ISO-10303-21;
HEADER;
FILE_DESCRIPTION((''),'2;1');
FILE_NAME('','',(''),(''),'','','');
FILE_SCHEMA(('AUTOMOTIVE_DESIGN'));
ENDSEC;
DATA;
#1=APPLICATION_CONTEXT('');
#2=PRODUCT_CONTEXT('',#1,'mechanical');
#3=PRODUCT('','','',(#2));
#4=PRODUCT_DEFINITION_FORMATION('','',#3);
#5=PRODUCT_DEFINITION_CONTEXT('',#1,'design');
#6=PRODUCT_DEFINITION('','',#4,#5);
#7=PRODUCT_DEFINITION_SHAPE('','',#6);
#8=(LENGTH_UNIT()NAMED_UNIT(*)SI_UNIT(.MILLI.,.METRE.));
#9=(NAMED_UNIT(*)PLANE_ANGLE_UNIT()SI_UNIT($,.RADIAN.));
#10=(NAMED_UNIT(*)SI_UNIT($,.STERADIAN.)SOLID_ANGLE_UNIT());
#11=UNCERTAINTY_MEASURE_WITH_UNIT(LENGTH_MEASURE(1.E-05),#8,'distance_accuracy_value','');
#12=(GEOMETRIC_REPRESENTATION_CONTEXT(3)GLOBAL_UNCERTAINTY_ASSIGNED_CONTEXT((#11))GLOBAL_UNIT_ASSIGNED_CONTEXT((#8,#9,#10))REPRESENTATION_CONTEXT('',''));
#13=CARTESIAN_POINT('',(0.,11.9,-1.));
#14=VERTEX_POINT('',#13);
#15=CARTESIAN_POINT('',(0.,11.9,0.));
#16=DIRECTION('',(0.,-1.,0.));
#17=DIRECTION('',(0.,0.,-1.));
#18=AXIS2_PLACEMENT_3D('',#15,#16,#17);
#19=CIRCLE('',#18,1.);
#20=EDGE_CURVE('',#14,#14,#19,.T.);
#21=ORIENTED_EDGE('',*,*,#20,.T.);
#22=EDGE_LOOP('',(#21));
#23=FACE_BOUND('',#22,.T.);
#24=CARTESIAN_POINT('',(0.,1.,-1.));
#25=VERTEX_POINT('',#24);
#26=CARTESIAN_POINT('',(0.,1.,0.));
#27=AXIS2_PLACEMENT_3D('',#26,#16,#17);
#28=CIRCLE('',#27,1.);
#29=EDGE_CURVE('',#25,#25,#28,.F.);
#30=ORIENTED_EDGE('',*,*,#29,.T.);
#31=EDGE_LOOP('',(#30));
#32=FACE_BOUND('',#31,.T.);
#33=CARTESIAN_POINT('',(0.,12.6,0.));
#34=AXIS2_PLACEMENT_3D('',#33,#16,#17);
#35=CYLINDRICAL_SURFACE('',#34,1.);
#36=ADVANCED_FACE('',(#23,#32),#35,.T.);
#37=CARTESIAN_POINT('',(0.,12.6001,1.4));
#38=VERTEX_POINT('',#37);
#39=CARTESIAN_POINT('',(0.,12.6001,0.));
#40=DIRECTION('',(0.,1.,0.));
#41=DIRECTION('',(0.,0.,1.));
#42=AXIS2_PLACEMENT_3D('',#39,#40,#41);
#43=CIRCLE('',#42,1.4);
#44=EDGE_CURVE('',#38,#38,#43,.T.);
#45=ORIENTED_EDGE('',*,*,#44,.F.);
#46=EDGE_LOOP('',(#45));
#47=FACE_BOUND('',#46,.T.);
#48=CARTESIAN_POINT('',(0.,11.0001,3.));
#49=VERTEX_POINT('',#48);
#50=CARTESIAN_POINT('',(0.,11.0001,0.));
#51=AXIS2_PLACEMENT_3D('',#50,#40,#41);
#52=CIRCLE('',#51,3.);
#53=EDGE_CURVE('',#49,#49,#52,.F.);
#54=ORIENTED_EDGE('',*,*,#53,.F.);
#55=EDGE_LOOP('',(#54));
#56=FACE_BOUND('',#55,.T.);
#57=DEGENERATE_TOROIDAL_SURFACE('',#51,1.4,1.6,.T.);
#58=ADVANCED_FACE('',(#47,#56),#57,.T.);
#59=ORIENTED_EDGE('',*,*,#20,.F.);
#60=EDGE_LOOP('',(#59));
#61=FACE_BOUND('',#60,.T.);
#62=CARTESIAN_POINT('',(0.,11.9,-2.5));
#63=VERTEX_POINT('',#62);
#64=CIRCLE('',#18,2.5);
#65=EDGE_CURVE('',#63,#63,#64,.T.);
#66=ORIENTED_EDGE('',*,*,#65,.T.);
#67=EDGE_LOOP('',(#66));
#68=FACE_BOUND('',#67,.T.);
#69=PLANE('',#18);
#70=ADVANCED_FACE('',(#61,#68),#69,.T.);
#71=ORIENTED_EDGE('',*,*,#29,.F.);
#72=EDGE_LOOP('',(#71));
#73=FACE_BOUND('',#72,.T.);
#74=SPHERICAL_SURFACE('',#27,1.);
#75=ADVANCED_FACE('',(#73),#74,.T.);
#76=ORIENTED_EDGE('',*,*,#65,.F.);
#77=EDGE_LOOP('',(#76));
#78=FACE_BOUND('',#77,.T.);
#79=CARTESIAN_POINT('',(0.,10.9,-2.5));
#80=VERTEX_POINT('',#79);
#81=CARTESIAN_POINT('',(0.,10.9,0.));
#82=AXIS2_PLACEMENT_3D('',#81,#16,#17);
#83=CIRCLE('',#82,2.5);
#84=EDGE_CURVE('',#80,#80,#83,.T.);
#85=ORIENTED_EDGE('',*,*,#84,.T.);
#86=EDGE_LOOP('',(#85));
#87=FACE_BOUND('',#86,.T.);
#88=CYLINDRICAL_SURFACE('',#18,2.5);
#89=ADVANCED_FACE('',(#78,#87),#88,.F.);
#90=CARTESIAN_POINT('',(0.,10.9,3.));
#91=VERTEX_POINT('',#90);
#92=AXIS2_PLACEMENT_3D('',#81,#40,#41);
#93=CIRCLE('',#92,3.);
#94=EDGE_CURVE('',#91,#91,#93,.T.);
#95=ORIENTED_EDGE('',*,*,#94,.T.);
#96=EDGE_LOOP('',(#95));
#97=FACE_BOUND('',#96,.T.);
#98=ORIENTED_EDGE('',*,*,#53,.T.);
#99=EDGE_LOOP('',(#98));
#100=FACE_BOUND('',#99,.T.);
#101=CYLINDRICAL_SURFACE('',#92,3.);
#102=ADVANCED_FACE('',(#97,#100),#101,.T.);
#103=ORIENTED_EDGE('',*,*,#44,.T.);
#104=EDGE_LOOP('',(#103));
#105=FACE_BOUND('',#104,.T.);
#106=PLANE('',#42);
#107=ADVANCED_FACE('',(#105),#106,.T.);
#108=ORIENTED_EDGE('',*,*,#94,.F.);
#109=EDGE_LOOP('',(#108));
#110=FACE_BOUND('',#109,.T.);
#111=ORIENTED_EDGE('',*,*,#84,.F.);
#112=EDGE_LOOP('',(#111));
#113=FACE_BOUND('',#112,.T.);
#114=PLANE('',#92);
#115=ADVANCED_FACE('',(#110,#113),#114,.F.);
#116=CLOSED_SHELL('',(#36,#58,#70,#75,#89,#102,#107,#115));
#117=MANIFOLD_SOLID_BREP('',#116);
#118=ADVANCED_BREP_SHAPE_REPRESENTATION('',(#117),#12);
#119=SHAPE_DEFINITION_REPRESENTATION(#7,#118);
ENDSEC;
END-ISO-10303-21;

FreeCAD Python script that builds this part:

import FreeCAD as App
import Part
import Sketcher
Q = App.Units.Quantity


def edges_at(feature, points):
    """Names of the edges that pass closest to the given points."""
    edges = feature.Shape.Edges
    near = lambda p: min(range(len(edges)), key=lambda i: edges[i].distToShape(Part.Vertex(*p))[0])
    return sorted({f"Edge{near(p) + 1}" for p in points})

doc = App.newDocument("Part")
body = doc.addObject("PartDesign::Body", "Body")

# Sketch on XZ plane
sketch1 = doc.addObject("Sketcher::SketchObject", "Sketch")
body.addObject(sketch1)
sketch1.AttachmentSupport = (doc.XZ_Plane, [""])
sketch1.MapMode = "FlatFace"
sketch1.addGeometry(Part.Circle(App.Vector(0, 0, 0), App.Vector(0, 0, 1), 1), False)
sketch1.addConstraint([
    Sketcher.Constraint("Coincident", 0, 3, -1, 1),
    Sketcher.Constraint("Diameter", 0, Q("2 mm")),
])
pad1 = doc.addObject("PartDesign::Pad", "Pad")
body.addObject(pad1)
pad1.Profile = sketch1
pad1.Length = 12.6
pad1.Reversed = True
doc.recompute()

fillet = doc.addObject("PartDesign::Fillet", "Fillet")
body.addObject(fillet)
fillet.Base = (pad1, edges_at(pad1, [(0, 0, -1)]))
fillet.Radius = 1

# Sketch on XZ plane
sketch2 = doc.addObject("Sketcher::SketchObject", "Sketch001")
body.addObject(sketch2)
sketch2.AttachmentSupport = (doc.XZ_Plane, [""])
sketch2.MapMode = "FlatFace"
sketch2.AttachmentOffset = App.Placement(App.Vector(0, 0, -12.6), App.Rotation())
sketch2.addGeometry(Part.Circle(App.Vector(0, 0, 0), App.Vector(0, 0, 1), 3), False)
sketch2.addConstraint([
    Sketcher.Constraint("Coincident", 0, 3, -1, 1),
    Sketcher.Constraint("Diameter", 0, Q("6 mm")),
])
pad2 = doc.addObject("PartDesign::Pad", "Pad001")
body.addObject(pad2)
pad2.Profile = sketch2
pad2.Type = "TwoLengths"
pad2.Length = 0.0001
pad2.Length2 = 1.7
pad2.Reversed = True
doc.recompute()

fillet2 = doc.addObject("PartDesign::Fillet", "Fillet001")
body.addObject(fillet2)
fillet2.Base = (pad2, edges_at(pad2, [(0, 12.6, -3)]))
fillet2.Radius = 1.6

# Sketch on XZ plane
sketch3 = doc.addObject("Sketcher::SketchObject", "Sketch002")
body.addObject(sketch3)
sketch3.AttachmentSupport = (doc.XZ_Plane, [""])
sketch3.MapMode = "FlatFace"
sketch3.AttachmentOffset = App.Placement(App.Vector(0, 0, -10.9), App.Rotation())
sketch3.addGeometry([
    Part.Circle(App.Vector(0, 0, 0), App.Vector(0, 0, 1), 2.5),
    Part.Circle(App.Vector(0, 0, 0), App.Vector(0, 0, 1), 1),
], False)
sketch3.addConstraint([
    Sketcher.Constraint("Coincident", 0, 3, -1, 1),
    Sketcher.Constraint("Coincident", 1, 3, -1, 1),
    Sketcher.Constraint("Diameter", 0, Q("5 mm")),
    Sketcher.Constraint("Diameter", 1, Q("2 mm")),
])
pocket1 = doc.addObject("PartDesign::Pocket", "Pocket")
body.addObject(pocket1)
pocket1.Profile = sketch3
pocket1.Length = 1

doc.recompute()
